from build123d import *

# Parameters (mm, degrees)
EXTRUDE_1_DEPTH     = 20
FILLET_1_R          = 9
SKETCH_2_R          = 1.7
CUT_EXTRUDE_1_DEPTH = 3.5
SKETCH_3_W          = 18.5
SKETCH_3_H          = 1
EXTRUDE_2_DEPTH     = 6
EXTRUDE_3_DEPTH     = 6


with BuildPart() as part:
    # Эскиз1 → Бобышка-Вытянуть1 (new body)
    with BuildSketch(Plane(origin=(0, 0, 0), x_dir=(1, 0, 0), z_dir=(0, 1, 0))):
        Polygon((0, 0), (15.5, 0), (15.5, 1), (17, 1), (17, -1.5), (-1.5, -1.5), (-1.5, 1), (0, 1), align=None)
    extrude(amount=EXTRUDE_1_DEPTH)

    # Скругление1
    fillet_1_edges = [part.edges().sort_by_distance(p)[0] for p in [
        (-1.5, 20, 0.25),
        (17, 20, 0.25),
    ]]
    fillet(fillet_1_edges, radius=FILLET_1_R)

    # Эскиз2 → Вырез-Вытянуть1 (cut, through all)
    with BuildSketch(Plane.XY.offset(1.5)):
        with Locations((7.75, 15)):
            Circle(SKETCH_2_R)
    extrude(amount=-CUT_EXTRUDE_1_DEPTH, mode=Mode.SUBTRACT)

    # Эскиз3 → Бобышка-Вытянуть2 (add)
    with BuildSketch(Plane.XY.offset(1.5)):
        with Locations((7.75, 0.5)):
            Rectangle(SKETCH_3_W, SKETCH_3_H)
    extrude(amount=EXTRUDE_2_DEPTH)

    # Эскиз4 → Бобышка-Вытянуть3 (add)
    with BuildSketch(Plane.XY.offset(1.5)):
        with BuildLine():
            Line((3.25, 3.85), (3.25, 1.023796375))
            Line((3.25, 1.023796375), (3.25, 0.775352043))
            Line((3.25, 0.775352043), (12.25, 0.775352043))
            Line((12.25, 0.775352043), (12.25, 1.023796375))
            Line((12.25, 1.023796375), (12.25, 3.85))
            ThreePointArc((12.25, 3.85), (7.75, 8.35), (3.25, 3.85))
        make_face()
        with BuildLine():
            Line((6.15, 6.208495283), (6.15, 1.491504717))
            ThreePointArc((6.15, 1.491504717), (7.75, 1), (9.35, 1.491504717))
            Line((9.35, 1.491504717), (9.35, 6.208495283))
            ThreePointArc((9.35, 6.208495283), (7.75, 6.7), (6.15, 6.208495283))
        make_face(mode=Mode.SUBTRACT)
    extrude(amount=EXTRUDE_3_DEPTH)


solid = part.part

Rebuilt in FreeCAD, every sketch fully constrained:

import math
import FreeCAD as App
import Part
import Sketcher


def edges_at(feature, points):
    """Names of the edges that pass closest to the given points."""
    edges = feature.Shape.Edges
    near = lambda p: min(range(len(edges)), key=lambda i: edges[i].distToShape(Part.Vertex(*p))[0])
    return sorted({f"Edge{near(p) + 1}" for p in points})

doc = App.newDocument("Part")
params = doc.addObject("Spreadsheet::Sheet", "Params")
for row, (alias, value) in enumerate([
    ("sketch1_height", "1 mm"),
    ("sketch1_width", "15.5 mm"),
    ("sketch1_width2", "1.5 mm"),
    ("sketch1_height2", "2.5 mm"),
    ("pad1_length", "20 mm"),
    ("fillet_radius", "9 mm"),
    ("sketch2_diameter", "3.4 mm"),
    ("sketch3_height", "1 mm"),
    ("sketch3_width", "18.5 mm"),
    ("pad2_length", "6 mm"),
    ("sketch4_radius", "4.5 mm"),
    ("sketch4_radius2", "2.85 mm"),
    ("pad3_length", "6 mm"),
], start=1):
    params.set(f"A{row}", alias)
    params.set(f"B{row}", "=" + value)
    params.setAlias(f"B{row}", alias)

body = doc.addObject("PartDesign::Body", "Body")

# Sketch on XZ plane
sketch1 = body.newObject("Sketcher::SketchObject", "Sketch")
sketch1.AttachmentSupport = (doc.getObject("XZ_Plane"), [""])
sketch1.MapMode = "FlatFace"
sketch1.addGeometry([
    Part.LineSegment(App.Vector(15.5, 0, 0), App.Vector(0, 0, 0)),  # 0
    Part.LineSegment(App.Vector(0, 0, 0), App.Vector(0, -1, 0)),  # 1
    Part.LineSegment(App.Vector(0, -1, 0), App.Vector(-1.5, -1, 0)),  # 2
    Part.LineSegment(App.Vector(-1.5, -1, 0), App.Vector(-1.5, 1.5, 0)),  # 3
    Part.LineSegment(App.Vector(-1.5, 1.5, 0), App.Vector(17, 1.5, 0)),  # 4
    Part.LineSegment(App.Vector(17, 1.5, 0), App.Vector(17, -1, 0)),  # 5
    Part.LineSegment(App.Vector(17, -1, 0), App.Vector(15.5, -1, 0)),  # 6
    Part.LineSegment(App.Vector(15.5, -1, 0), App.Vector(15.5, 0, 0)),  # 7
], False)
sketch1.addConstraint([
    Sketcher.Constraint("Coincident", 0, 2, 1, 1),
    Sketcher.Constraint("Coincident", 1, 2, 2, 1),
    Sketcher.Constraint("Coincident", 2, 2, 3, 1),
    Sketcher.Constraint("Coincident", 3, 2, 4, 1),
    Sketcher.Constraint("Coincident", 4, 2, 5, 1),
    Sketcher.Constraint("Coincident", 5, 2, 6, 1),
    Sketcher.Constraint("Coincident", 6, 2, 7, 1),
    Sketcher.Constraint("Coincident", 7, 2, 0, 1),
    Sketcher.Constraint("Horizontal", 0),
    Sketcher.Constraint("Vertical", 1),
    Sketcher.Constraint("Horizontal", 2),
    Sketcher.Constraint("Vertical", 3),
    Sketcher.Constraint("Horizontal", 4),
    Sketcher.Constraint("Vertical", 5),
    Sketcher.Constraint("Horizontal", 6),
    Sketcher.Constraint("Vertical", 7),
    Sketcher.Constraint("Coincident", 0, 2, -1, 1),
    Sketcher.Constraint("Horizontal", 2, 2, 5, 2),
    Sketcher.Constraint("Equal", 2, 6),
    Sketcher.Constraint("DistanceY", 1, 2, 1, 1, 1.0),
    Sketcher.Constraint("DistanceX", 0, 2, 0, 1, 15.5),
    Sketcher.Constraint("DistanceX", 2, 2, 2, 1, 1.5),
    Sketcher.Constraint("DistanceY", 3, 1, 3, 2, 2.5),
])
sketch1.setExpression("Constraints[19]", "Params.sketch1_height")
sketch1.setExpression("Constraints[20]", "Params.sketch1_width")
sketch1.setExpression("Constraints[21]", "Params.sketch1_width2")
sketch1.setExpression("Constraints[22]", "Params.sketch1_height2")
pad1 = body.newObject("PartDesign::Pad", "Pad")
pad1.Profile = sketch1
pad1.setExpression("Length", "Params.pad1_length")
pad1.Reversed = True
doc.recompute()

fillet = body.newObject("PartDesign::Fillet", "Fillet")
fillet.Base = (pad1, edges_at(pad1, [(-1.5, 20, 0.25), (17, 20, 0.25)]))
fillet.setExpression("Radius", "Params.fillet_radius")

# Sketch on XY plane
sketch2 = body.newObject("Sketcher::SketchObject", "Sketch001")
sketch2.AttachmentSupport = (doc.getObject("XY_Plane"), [""])
sketch2.MapMode = "FlatFace"
sketch2.AttachmentOffset = App.Placement(App.Vector(0, 0, 1.5), App.Rotation())
sketch2.addGeometry(Part.Circle(App.Vector(7.8, 15, 0), App.Vector(0, 0, 1), 1.7), False)
sketch2.addConstraint([
    Sketcher.Constraint("Diameter", 0, 3.4),
    Sketcher.Constraint("DistanceY", -1, 1, 0, 3, 15.0),
    Sketcher.Constraint("DistanceX", -1, 1, 0, 3, 7.75),
])
sketch2.setExpression("Constraints[0]", "Params.sketch2_diameter")
pocket1 = body.newObject("PartDesign::Pocket", "Pocket")
pocket1.Profile = sketch2
pocket1.Type = "ThroughAll"

# Sketch on XY plane
sketch3 = body.newObject("Sketcher::SketchObject", "Sketch002")
sketch3.AttachmentSupport = (doc.getObject("XY_Plane"), [""])
sketch3.MapMode = "FlatFace"
sketch3.AttachmentOffset = App.Placement(App.Vector(0, 0, 1.5), App.Rotation())
sketch3.addGeometry([
    Part.LineSegment(App.Vector(-1.5, 1, 0), App.Vector(-1.5, 0, 0)),
    Part.LineSegment(App.Vector(-1.5, 0, 0), App.Vector(17, 0, 0)),
    Part.LineSegment(App.Vector(17, 0, 0), App.Vector(17, 1, 0)),
    Part.LineSegment(App.Vector(17, 1, 0), App.Vector(-1.5, 1, 0)),
], False)
sketch3.addConstraint([
    Sketcher.Constraint("Coincident", 0, 2, 1, 1),
    Sketcher.Constraint("Coincident", 1, 2, 2, 1),
    Sketcher.Constraint("Coincident", 2, 2, 3, 1),
    Sketcher.Constraint("Coincident", 3, 2, 0, 1),
    Sketcher.Constraint("Vertical", 0),
    Sketcher.Constraint("Horizontal", 1),
    Sketcher.Constraint("Vertical", 2),
    Sketcher.Constraint("Horizontal", 3),
    Sketcher.Constraint("PointOnObject", 0, 2, -1),
    Sketcher.Constraint("DistanceY", 0, 2, 0, 1, 1.0),
    Sketcher.Constraint("DistanceX", 1, 1, 1, 2, 18.5),
    Sketcher.Constraint("DistanceX", -1, 1, 1, 2, 17.0),
])
sketch3.setExpression("Constraints[9]", "Params.sketch3_height")
sketch3.setExpression("Constraints[10]", "Params.sketch3_width")
pad2 = body.newObject("PartDesign::Pad", "Pad001")
pad2.Profile = sketch3
pad2.setExpression("Length", "Params.pad2_length")

# Sketch on XY plane
sketch4 = body.newObject("Sketcher::SketchObject", "Sketch003")
sketch4.AttachmentSupport = (doc.getObject("XY_Plane"), [""])
sketch4.MapMode = "FlatFace"
sketch4.AttachmentOffset = App.Placement(App.Vector(0, 0, 1.5), App.Rotation())
sketch4.addGeometry([
    Part.LineSegment(App.Vector(3.2, 3.9, 0), App.Vector(3.2, 0.8, 0)),  # 0
    Part.LineSegment(App.Vector(3.2, 0.8, 0), App.Vector(12.2, 0.8, 0)),  # 1
    Part.LineSegment(App.Vector(12.2, 0.8, 0), App.Vector(12.2, 3.9, 0)),  # 2
    Part.ArcOfCircle(Part.Circle(App.Vector(7.8, 3.9, 0), App.Vector(0, 0, 1), 4.5), math.radians(0), math.radians(180)),  # 3
    Part.LineSegment(App.Vector(6.2, 1.5, 0), App.Vector(6.2, 6.2, 0)),  # 4
    Part.ArcOfCircle(Part.Circle(App.Vector(7.8, 3.9, 0), App.Vector(0, 0, 1), 2.9), math.radians(56), math.radians(124)),  # 5
    Part.LineSegment(App.Vector(9.3, 6.2, 0), App.Vector(9.3, 1.5, 0)),  # 6
    Part.ArcOfCircle(Part.Circle(App.Vector(7.8, 3.9, 0), App.Vector(0, 0, 1), 2.9), math.radians(-124), math.radians(-56)),  # 7
], False)
sketch4.addConstraint([
    Sketcher.Constraint("Coincident", 0, 2, 1, 1),
    Sketcher.Constraint("Coincident", 1, 2, 2, 1),
    Sketcher.Constraint("Tangent", 2, 2, 3, 1),
    Sketcher.Constraint("Tangent", 3, 2, 0, 1),
    Sketcher.Constraint("Coincident", 4, 2, 5, 2),
    Sketcher.Constraint("Coincident", 5, 1, 6, 1),
    Sketcher.Constraint("Coincident", 6, 2, 7, 2),
    Sketcher.Constraint("Coincident", 7, 1, 4, 1),
    Sketcher.Constraint("Vertical", 0),
    Sketcher.Constraint("Horizontal", 1),
    Sketcher.Constraint("Vertical", 2),
    Sketcher.Constraint("Vertical", 4),
    Sketcher.Constraint("Vertical", 6),
    Sketcher.Constraint("Coincident", 5, 3, 3, 3),
    Sketcher.Constraint("Coincident", 7, 3, 3, 3),
    Sketcher.Constraint("Equal", 5, 7),
    Sketcher.Constraint("Horizontal", 4, 2, 5, 1),
    Sketcher.Constraint("Radius", 3, 4.5),
    Sketcher.Constraint("Radius", 5, 2.85),
    Sketcher.Constraint("DistanceX", 4, 2, 3, 3, 1.6),
    Sketcher.Constraint("DistanceX", -1, 1, 3, 3, 7.75),
    Sketcher.Constraint("DistanceY", -1, 1, 3, 3, 3.85),
    Sketcher.Constraint("DistanceY", 0, 2, 0, 1, 3.074648),
])
sketch4.setExpression("Constraints[17]", "Params.sketch4_radius")
sketch4.setExpression("Constraints[18]", "Params.sketch4_radius2")
pad3 = body.newObject("PartDesign::Pad", "Pad002")
pad3.Profile = sketch4
pad3.setExpression("Length", "Params.pad3_length")

doc.recompute()
